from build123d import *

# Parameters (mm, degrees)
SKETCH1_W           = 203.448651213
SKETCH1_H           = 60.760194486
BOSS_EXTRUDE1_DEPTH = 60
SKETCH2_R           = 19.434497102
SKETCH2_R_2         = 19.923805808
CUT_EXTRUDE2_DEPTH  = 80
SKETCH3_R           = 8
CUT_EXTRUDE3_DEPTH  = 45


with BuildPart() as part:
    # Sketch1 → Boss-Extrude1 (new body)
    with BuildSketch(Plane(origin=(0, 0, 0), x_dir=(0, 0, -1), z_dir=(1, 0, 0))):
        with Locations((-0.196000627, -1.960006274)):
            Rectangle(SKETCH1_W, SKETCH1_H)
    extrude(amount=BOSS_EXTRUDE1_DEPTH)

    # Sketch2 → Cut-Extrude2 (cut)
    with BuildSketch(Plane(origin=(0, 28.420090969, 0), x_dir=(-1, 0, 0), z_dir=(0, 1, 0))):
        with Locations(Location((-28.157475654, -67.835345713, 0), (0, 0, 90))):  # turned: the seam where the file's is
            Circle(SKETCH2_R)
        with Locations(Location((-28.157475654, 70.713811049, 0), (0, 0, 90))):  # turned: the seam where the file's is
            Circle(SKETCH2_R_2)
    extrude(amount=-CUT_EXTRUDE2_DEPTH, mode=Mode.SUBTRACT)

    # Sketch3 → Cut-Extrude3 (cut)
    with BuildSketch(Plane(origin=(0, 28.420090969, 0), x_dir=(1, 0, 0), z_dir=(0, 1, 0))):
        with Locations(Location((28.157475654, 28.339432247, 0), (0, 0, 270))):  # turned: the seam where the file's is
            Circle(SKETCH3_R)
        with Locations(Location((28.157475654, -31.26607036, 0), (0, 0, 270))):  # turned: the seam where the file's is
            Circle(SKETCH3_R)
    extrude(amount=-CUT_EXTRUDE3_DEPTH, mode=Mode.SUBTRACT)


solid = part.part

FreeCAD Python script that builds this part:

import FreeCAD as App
import Part
import Sketcher
from FreeCAD import Vector
Q = App.Units.Quantity

doc = App.newDocument("Part")
body = doc.addObject("PartDesign::Body", "Body")

sketch1 = doc.addObject("Sketcher::SketchObject", "Sketch")
body.addObject(sketch1)
sketch1.AttachmentSupport = (doc.YZ_Plane, [""])
sketch1.MapMode = "FlatFace"
sketch1.addGeometry([
    Part.LineSegment(Vector(28.420091, 101.920326, 0), Vector(-32.340104, 101.920326, 0)),
    Part.LineSegment(Vector(-32.340104, 101.920326, 0), Vector(-32.340104, -101.528325, 0)),
    Part.LineSegment(Vector(-32.340104, -101.528325, 0), Vector(28.420091, -101.528325, 0)),
    Part.LineSegment(Vector(28.420091, -101.528325, 0), Vector(28.420091, 101.920326, 0)),
], False)
sketch1.addConstraint([
    Sketcher.Constraint("Coincident", 0, 2, 1, 1),
    Sketcher.Constraint("Coincident", 1, 2, 2, 1),
    Sketcher.Constraint("Coincident", 2, 2, 3, 1),
    Sketcher.Constraint("Coincident", 3, 2, 0, 1),
    Sketcher.Constraint("Horizontal", 0),
    Sketcher.Constraint("Vertical", 1),
    Sketcher.Constraint("Horizontal", 2),
    Sketcher.Constraint("Vertical", 3),
    Sketcher.Constraint("DistanceY", 1, 2, 1, 1, Q("203.448651 mm")),
    Sketcher.Constraint("DistanceX", 0, 2, 0, 1, Q("60.760194 mm")),
    Sketcher.Constraint("DistanceX", -1, 1, 2, 2, Q("28.420091 mm")),
    Sketcher.Constraint("DistanceY", -1, 1, 0, 2, Q("101.920326 mm")),
])
pad1 = doc.addObject("PartDesign::Pad", "Pad")
body.addObject(pad1)
pad1.Profile = sketch1
pad1.Length = 60

sketch2 = doc.addObject("Sketcher::SketchObject", "Sketch001")
body.addObject(sketch2)
sketch2.AttachmentSupport = (doc.XZ_Plane, [""])
sketch2.MapMode = "FlatFace"
sketch2.AttachmentOffset = App.Placement(Vector(0, 0, -28.420091), App.Rotation())
sketch2.addGeometry([
    Part.Circle(Vector(28.157476, -67.835346, 0), Vector(0, 0, 1), 19.434497),
    Part.Circle(Vector(28.157476, 70.713811, 0), Vector(0, 0, 1), 19.923806),
], False)
sketch2.addConstraint([
    Sketcher.Constraint("Vertical", 0, 3, 1, 3),
    Sketcher.Constraint("Diameter", 1, Q("39.847612 mm")),
    Sketcher.Constraint("Diameter", 0, Q("38.868994 mm")),
    Sketcher.Constraint("DistanceY", -1, 1, 1, 3, Q("70.713811 mm")),
    Sketcher.Constraint("DistanceX", -1, 1, 0, 3, Q("28.157476 mm")),
    Sketcher.Constraint("DistanceY", 0, 3, -1, 1, Q("67.835346 mm")),
])
pocket1 = doc.addObject("PartDesign::Pocket", "Pocket")
body.addObject(pocket1)
pocket1.Profile = sketch2
pocket1.Length = 80
pocket1.Reversed = True

sketch3 = doc.addObject("Sketcher::SketchObject", "Sketch002")
body.addObject(sketch3)
sketch3.AttachmentSupport = (doc.XZ_Plane, [""])
sketch3.MapMode = "FlatFace"
sketch3.AttachmentOffset = App.Placement(Vector(0, 0, -28.420091), App.Rotation())
sketch3.addGeometry([
    Part.Circle(Vector(28.157476, -28.339432, 0), Vector(0, 0, 1), 8),
    Part.Circle(Vector(28.157476, 31.26607, 0), Vector(0, 0, 1), 8),
], False)
sketch3.addConstraint([
    Sketcher.Constraint("Equal", 0, 1),
    Sketcher.Constraint("Vertical", 0, 3, 1, 3),
    Sketcher.Constraint("Diameter", 0, Q("16 mm")),
    Sketcher.Constraint("DistanceY", -1, 1, 1, 3, Q("31.26607 mm")),
    Sketcher.Constraint("DistanceX", -1, 1, 0, 3, Q("28.157476 mm")),
    Sketcher.Constraint("DistanceY", 0, 3, -1, 1, Q("28.339432 mm")),
])
pocket2 = doc.addObject("PartDesign::Pocket", "Pocket001")
body.addObject(pocket2)
pocket2.Profile = sketch3
pocket2.Length = 45
pocket2.Reversed = True

doc.recompute()
